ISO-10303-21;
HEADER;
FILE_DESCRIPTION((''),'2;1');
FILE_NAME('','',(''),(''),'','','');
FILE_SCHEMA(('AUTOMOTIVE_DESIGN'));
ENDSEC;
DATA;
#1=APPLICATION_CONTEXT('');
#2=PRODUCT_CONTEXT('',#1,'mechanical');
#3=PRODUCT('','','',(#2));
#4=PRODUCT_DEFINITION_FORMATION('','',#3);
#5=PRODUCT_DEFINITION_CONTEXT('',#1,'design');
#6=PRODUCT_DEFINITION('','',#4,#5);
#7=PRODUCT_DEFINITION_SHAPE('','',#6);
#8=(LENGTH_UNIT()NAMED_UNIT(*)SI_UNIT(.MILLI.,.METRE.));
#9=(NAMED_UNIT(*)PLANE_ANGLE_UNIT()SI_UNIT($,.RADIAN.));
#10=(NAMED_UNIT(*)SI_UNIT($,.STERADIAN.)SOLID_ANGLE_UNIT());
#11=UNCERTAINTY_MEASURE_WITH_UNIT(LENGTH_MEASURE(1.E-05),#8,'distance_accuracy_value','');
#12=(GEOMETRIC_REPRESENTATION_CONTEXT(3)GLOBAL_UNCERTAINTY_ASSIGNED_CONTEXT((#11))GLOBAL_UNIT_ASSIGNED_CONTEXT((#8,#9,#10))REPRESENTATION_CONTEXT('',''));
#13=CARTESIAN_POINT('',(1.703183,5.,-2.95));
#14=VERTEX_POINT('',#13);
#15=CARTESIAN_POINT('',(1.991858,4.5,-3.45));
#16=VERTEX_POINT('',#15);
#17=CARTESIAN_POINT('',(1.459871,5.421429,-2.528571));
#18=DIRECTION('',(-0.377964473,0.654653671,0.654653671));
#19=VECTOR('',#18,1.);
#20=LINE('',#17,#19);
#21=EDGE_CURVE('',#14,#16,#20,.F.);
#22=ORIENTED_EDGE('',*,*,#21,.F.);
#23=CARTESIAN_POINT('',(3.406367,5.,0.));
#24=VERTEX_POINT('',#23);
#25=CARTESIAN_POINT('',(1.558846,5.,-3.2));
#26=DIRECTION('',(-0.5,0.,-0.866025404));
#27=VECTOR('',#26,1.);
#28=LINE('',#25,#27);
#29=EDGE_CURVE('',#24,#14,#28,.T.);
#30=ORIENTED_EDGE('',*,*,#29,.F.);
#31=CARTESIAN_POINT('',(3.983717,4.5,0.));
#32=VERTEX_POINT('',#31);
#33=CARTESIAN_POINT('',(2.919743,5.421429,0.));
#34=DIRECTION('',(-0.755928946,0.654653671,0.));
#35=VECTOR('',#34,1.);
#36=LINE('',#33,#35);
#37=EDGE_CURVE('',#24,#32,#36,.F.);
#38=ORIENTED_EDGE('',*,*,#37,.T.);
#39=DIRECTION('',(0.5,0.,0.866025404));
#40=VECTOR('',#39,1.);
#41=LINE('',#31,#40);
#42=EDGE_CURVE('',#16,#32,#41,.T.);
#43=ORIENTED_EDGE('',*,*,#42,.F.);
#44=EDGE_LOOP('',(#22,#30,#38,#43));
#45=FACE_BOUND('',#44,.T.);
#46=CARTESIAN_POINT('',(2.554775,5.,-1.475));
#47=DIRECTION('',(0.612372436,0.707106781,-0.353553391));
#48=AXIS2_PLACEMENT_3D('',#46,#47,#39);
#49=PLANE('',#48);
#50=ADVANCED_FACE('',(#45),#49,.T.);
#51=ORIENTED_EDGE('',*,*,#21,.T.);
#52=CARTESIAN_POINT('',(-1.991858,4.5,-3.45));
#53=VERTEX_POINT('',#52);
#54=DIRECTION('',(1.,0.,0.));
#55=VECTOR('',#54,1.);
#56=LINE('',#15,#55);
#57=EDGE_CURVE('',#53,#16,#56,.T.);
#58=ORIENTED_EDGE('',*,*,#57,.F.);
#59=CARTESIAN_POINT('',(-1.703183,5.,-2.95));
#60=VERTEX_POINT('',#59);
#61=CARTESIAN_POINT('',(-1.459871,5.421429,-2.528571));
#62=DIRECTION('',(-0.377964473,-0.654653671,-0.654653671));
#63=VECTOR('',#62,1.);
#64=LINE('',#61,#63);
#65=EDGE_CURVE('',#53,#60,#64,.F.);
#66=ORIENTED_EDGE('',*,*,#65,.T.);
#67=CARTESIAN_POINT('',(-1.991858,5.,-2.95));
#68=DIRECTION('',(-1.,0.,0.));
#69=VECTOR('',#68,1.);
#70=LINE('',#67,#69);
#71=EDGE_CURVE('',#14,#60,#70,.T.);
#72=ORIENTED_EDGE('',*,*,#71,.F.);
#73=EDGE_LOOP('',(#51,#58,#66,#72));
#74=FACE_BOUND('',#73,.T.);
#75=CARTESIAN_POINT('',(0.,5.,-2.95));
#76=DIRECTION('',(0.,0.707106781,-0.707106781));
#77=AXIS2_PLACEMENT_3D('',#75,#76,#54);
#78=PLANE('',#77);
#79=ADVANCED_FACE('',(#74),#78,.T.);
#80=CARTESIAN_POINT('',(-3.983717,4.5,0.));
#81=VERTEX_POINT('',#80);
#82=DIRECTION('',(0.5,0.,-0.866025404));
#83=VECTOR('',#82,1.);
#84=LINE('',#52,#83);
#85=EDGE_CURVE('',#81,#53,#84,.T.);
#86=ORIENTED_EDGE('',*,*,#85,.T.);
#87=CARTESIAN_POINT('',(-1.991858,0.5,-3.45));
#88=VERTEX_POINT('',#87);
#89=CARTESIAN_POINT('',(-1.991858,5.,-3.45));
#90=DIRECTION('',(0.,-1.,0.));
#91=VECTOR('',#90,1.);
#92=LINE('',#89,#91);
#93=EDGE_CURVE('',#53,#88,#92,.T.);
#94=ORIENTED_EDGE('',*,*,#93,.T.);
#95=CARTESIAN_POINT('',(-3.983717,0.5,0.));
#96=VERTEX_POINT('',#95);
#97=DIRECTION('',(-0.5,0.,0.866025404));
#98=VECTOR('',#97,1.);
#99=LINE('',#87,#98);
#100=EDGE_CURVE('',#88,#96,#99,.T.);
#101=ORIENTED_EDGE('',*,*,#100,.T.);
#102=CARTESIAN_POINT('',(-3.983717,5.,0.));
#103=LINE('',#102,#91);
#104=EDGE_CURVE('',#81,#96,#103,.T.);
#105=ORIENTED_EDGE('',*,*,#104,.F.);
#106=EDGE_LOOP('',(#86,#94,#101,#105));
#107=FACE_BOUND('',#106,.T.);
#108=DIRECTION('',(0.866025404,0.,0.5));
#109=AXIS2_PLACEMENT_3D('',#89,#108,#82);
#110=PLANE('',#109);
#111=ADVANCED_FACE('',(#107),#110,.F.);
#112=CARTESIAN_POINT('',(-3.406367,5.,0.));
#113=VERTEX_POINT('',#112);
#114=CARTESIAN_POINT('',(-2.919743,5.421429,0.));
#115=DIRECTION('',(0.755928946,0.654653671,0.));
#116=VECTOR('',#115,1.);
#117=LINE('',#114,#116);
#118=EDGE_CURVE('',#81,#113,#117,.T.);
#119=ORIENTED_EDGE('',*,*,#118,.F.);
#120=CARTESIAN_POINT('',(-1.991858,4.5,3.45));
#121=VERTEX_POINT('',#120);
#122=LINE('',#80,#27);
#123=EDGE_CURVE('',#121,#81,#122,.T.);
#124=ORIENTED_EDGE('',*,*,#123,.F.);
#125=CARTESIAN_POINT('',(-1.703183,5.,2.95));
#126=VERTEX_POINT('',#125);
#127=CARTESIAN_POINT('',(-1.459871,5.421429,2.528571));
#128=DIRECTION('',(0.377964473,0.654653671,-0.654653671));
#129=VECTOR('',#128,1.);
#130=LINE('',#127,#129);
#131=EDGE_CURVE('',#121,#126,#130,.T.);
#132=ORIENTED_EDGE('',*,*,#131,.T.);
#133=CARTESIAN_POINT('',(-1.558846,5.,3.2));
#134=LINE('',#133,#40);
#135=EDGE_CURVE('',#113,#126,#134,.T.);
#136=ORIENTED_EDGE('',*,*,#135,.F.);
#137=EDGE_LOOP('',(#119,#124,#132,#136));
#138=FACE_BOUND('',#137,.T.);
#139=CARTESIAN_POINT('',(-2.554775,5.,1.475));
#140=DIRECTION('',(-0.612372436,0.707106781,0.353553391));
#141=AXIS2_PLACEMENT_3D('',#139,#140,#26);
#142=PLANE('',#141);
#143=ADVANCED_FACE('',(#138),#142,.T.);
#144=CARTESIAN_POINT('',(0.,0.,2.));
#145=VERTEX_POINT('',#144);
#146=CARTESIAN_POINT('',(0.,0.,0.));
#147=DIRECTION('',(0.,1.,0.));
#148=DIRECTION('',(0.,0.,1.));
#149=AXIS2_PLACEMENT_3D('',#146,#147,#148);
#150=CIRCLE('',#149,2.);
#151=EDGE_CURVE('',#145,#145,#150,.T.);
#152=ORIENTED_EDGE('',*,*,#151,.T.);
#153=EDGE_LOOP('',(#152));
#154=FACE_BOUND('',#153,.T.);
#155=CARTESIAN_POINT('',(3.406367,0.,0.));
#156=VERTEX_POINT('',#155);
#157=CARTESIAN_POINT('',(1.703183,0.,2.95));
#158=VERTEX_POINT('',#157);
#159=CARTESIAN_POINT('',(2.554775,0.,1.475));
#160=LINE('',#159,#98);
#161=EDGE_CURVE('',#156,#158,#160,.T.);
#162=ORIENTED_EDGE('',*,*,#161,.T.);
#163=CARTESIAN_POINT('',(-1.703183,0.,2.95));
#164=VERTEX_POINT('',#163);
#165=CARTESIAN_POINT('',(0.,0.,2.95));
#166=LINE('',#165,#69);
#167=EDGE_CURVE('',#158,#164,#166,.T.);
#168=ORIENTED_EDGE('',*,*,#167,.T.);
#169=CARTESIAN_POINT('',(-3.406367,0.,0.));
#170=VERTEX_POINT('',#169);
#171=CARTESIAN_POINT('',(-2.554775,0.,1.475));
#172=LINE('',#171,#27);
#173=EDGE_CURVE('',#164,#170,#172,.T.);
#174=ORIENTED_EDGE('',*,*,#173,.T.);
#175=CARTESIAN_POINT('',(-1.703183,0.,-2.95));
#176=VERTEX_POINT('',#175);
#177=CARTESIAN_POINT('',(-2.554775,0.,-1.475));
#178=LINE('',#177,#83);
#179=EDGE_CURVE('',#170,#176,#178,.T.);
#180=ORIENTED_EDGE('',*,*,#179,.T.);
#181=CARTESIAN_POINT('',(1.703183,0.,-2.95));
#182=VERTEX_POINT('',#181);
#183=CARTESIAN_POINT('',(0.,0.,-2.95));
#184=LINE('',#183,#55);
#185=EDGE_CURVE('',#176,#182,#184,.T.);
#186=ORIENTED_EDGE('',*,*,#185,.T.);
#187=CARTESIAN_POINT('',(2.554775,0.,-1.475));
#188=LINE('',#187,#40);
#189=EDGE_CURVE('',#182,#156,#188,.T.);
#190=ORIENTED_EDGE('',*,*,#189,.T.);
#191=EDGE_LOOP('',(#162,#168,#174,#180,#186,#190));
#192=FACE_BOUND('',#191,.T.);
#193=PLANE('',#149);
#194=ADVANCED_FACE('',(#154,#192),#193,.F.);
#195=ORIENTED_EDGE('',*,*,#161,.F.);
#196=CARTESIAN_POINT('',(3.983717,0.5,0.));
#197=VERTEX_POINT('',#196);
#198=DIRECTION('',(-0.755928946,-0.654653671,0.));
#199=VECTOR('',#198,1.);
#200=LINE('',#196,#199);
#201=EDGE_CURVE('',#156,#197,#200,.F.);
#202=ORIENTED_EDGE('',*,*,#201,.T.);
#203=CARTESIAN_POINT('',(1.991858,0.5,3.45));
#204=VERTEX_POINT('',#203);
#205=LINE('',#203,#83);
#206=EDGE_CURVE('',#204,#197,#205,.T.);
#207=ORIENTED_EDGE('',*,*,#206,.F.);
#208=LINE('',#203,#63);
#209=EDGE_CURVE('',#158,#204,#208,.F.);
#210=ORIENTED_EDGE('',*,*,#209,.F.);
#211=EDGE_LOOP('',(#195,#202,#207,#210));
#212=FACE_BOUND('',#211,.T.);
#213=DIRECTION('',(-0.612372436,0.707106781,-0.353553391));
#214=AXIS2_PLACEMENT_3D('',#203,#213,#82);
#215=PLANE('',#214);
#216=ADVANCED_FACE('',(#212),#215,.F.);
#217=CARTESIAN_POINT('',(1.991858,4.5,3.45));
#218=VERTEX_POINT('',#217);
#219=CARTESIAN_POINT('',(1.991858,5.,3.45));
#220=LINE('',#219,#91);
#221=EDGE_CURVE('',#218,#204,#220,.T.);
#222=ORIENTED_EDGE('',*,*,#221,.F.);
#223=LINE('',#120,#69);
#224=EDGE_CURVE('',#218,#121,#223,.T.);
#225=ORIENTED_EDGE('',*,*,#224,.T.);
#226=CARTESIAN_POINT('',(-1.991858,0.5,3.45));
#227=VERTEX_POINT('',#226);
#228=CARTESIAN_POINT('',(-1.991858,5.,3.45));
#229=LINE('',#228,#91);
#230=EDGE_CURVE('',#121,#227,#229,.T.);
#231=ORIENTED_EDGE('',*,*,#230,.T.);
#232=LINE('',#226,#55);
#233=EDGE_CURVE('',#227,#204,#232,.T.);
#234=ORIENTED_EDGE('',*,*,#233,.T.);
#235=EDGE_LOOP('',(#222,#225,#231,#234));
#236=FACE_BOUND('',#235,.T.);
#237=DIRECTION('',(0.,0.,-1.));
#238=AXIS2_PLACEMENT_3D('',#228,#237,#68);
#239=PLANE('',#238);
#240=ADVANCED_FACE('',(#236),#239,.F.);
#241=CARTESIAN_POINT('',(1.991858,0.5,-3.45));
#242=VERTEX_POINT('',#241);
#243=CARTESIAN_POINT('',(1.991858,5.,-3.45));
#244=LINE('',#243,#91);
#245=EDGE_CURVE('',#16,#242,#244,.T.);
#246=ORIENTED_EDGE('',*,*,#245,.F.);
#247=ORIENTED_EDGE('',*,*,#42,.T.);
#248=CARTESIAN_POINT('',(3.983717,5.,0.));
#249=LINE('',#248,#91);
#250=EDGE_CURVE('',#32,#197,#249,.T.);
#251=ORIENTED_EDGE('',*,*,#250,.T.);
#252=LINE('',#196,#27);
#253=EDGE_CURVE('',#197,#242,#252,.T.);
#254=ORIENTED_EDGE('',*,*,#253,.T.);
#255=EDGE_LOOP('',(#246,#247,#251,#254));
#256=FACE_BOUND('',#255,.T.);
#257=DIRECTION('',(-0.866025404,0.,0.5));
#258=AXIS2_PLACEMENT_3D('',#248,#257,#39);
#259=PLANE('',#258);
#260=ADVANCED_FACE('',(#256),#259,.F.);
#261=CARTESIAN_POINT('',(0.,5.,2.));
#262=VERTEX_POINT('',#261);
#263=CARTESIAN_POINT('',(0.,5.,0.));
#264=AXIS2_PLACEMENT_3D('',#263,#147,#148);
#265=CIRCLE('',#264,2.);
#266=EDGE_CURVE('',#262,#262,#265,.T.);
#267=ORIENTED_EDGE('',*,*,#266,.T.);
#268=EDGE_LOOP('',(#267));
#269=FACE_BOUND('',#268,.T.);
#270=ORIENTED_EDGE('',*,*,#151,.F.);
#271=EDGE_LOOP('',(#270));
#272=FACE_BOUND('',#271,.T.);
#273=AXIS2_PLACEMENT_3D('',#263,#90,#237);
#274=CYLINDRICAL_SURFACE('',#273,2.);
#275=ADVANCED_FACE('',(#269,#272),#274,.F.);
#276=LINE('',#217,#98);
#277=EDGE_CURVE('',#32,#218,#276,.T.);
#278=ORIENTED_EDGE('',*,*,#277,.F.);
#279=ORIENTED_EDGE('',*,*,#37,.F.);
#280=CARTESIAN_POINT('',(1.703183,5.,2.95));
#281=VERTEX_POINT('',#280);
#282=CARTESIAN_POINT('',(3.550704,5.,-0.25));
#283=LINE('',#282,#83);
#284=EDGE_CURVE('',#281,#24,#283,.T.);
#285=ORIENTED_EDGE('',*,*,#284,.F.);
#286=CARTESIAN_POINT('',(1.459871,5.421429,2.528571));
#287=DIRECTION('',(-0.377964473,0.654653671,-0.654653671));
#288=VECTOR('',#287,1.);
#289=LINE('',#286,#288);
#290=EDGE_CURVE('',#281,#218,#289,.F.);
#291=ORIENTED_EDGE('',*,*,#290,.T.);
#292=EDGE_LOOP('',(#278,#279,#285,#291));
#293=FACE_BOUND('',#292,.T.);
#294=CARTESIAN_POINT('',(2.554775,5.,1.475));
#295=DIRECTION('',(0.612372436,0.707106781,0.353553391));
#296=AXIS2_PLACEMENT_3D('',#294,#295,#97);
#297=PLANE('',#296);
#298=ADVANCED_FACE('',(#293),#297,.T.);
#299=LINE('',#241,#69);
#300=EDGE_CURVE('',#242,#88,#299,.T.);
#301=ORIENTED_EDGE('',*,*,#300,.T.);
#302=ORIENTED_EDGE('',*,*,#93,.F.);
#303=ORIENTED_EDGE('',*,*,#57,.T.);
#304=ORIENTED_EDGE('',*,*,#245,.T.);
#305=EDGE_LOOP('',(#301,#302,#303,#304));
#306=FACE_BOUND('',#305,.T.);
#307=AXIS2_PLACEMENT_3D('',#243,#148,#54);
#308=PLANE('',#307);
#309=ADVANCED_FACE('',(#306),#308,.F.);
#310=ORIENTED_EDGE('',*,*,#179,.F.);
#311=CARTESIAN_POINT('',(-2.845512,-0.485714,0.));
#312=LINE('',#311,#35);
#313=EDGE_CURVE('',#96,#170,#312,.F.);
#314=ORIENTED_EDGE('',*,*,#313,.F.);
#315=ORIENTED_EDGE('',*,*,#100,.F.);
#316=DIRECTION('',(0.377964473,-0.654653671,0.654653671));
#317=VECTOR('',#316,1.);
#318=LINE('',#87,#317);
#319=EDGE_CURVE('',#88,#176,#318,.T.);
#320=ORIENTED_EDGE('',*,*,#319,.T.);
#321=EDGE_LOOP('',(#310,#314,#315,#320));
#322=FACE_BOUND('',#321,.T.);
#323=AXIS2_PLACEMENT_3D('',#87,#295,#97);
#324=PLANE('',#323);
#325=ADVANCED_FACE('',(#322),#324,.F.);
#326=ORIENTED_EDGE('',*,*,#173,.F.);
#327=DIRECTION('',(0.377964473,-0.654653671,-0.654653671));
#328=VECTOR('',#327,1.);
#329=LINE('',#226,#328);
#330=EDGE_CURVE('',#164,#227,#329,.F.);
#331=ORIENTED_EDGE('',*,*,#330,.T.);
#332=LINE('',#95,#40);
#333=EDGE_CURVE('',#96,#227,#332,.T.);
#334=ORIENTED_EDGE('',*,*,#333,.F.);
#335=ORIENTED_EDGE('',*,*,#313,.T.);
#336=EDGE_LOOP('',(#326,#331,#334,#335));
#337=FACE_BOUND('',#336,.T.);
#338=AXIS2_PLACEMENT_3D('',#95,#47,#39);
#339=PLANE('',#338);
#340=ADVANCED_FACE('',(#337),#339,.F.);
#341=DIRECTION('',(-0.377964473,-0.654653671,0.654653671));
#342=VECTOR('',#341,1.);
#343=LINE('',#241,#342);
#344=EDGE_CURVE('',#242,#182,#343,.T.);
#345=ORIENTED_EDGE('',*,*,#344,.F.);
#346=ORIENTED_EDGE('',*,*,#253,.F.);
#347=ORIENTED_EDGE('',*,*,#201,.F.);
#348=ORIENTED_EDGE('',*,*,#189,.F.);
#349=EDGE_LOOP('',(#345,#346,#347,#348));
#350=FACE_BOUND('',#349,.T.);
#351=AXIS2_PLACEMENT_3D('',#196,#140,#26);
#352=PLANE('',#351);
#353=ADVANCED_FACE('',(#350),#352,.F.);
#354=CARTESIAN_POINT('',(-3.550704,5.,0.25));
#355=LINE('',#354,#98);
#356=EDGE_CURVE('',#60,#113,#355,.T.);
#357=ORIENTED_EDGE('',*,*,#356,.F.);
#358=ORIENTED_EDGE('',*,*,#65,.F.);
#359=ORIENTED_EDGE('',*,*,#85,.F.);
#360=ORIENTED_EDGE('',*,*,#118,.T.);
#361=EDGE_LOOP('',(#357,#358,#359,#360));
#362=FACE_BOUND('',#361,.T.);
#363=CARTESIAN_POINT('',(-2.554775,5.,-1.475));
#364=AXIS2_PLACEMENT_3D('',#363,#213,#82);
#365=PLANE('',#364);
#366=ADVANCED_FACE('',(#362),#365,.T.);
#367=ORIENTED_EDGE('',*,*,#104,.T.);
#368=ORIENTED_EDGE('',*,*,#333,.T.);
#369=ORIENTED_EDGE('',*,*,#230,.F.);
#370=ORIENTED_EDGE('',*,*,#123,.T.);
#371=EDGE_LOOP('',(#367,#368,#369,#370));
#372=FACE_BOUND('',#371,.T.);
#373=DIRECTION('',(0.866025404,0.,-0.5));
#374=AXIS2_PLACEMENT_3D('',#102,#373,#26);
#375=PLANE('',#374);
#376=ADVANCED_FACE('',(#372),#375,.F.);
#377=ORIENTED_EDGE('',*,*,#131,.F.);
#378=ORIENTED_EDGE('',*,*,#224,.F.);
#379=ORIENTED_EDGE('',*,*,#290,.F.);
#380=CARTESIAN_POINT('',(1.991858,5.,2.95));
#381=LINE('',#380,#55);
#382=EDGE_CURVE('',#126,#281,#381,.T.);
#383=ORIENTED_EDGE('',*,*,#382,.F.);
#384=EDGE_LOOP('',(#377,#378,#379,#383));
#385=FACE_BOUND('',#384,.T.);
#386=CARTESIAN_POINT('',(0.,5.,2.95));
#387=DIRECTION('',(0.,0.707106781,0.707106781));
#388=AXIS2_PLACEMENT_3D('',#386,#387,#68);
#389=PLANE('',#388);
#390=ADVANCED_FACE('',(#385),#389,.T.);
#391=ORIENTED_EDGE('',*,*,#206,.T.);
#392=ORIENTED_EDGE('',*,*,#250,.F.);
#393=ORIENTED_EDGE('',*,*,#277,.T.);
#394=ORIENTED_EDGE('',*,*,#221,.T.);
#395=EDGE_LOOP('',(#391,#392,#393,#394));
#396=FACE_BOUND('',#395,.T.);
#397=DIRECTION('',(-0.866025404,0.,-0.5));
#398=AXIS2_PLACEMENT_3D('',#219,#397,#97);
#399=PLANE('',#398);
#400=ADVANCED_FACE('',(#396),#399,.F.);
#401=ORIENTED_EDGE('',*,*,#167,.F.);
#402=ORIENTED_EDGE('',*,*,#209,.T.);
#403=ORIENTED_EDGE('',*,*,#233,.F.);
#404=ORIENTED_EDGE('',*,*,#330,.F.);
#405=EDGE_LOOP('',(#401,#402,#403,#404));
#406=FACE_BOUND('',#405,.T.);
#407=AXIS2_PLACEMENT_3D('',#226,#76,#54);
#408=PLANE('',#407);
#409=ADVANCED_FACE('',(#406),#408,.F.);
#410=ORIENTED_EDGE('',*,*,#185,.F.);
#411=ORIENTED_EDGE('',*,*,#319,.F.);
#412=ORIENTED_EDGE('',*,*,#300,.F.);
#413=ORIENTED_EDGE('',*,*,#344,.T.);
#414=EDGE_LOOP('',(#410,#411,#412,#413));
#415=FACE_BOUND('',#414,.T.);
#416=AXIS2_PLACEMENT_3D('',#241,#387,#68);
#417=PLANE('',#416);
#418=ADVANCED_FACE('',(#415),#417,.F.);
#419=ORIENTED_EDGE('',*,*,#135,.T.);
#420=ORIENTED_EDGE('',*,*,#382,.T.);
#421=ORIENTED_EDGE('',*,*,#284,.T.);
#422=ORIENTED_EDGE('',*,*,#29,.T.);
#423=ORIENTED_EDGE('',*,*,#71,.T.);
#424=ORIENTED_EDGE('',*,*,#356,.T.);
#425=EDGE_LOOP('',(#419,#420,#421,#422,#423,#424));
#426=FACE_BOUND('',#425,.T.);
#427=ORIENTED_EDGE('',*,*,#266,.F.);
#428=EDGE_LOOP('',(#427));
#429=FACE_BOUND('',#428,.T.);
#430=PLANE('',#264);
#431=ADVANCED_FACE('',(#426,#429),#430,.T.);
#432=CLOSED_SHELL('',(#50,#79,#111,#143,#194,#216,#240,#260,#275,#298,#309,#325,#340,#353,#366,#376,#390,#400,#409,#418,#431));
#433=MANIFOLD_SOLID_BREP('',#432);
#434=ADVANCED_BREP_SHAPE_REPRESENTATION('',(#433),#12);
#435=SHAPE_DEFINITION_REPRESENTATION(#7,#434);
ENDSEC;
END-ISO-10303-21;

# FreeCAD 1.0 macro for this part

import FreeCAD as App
import Part
import Sketcher
from FreeCAD import Vector
Q = App.Units.Quantity


def edges_at(feature, points):
    """Names of the edges that pass closest to the given points."""
    edges = feature.Shape.Edges
    near = lambda p: min(range(len(edges)), key=lambda i: edges[i].distToShape(Part.Vertex(*p))[0])
    return sorted({f"Edge{near(p) + 1}" for p in points})

doc = App.newDocument("Part")
body = doc.addObject("PartDesign::Body", "Body")

# Sketch on XZ plane
sketch1 = body.newObject("Sketcher::SketchObject", "Sketch")
sketch1.AttachmentSupport = (doc.getObject("XZ_Plane"), [""])
sketch1.MapMode = "FlatFace"
sketch1.addGeometry(Part.LineSegment(Vector(-3.983717, 0, 0), Vector(-1.991858, 3.45, 0)), False)
sketch1.addGeometry(Part.LineSegment(Vector(-1.991858, 3.45, 0), Vector(1.991858, 3.45, 0)), False)
sketch1.addGeometry(Part.LineSegment(Vector(1.991858, 3.45, 0), Vector(3.983717, 0, 0)), False)
sketch1.addGeometry(Part.LineSegment(Vector(3.983717, 0, 0), Vector(1.991858, -3.45, 0)), False)
sketch1.addGeometry(Part.LineSegment(Vector(1.991858, -3.45, 0), Vector(-1.991858, -3.45, 0)), False)
sketch1.addGeometry(Part.LineSegment(Vector(-1.991858, -3.45, 0), Vector(-3.983717, 0, 0)), False)
sketch1.addGeometry(Part.Circle(Vector(0, 0, 0), Vector(0, 0, 1), 2), False)
sketch1.addConstraint(Sketcher.Constraint("Coincident", 0, 2, 1, 1))
sketch1.addConstraint(Sketcher.Constraint("Coincident", 1, 2, 2, 1))
sketch1.addConstraint(Sketcher.Constraint("Coincident", 2, 2, 3, 1))
sketch1.addConstraint(Sketcher.Constraint("Coincident", 3, 2, 4, 1))
sketch1.addConstraint(Sketcher.Constraint("Coincident", 4, 2, 5, 1))
sketch1.addConstraint(Sketcher.Constraint("Coincident", 5, 2, 0, 1))
sketch1.addConstraint(Sketcher.Constraint("Horizontal", 1))
sketch1.addConstraint(Sketcher.Constraint("Horizontal", 4))
sketch1.addConstraint(Sketcher.Constraint("Coincident", 6, 3, -1, 1))
sketch1.addConstraint(Sketcher.Constraint("Symmetric", 0, 2, 3, 2, -1, 1))
sketch1.addConstraint(Sketcher.Constraint("Symmetric", 2, 2, 5, 2, -1, 1))
sketch1.addConstraint(Sketcher.Constraint("PointOnObject", 2, 2, -1))
sketch1.addConstraint(Sketcher.Constraint("Parallel", 2, 5))
sketch1.addConstraint(Sketcher.Constraint("Vertical", 1, 2, 3, 2))
sketch1.addConstraint(Sketcher.Constraint("Diameter", 6, Q("4 mm")))
sketch1.addConstraint(Sketcher.Constraint("Angle", 0, Q("60 deg")))
sketch1.addConstraint(Sketcher.Constraint("DistanceY", 3, 2, 1, 2, Q("6.9 mm")))
sketch1.addConstraint(Sketcher.Constraint("DistanceX", 1, 1, 1, 2, Q("3.983717 mm")))
pad1 = body.newObject("PartDesign::Pad", "Pad")
pad1.Profile = sketch1
pad1.Length = 5
pad1.Reversed = True
doc.recompute()

chamfer = body.newObject("PartDesign::Chamfer", "Chamfer")
chamfer.Base = (pad1, edges_at(pad1, [
    (0, 5, 3.45),
    (2.988, 5, 1.725),
    (2.988, 5, -1.725),
    (0, 5, -3.45),
    (-2.988, 5, -1.725),
    (0, 0, -3.45),
    (2.988, 0, -1.725),
    (2.988, 0, 1.725),
    (0, 0, 3.45),
    (-2.988, 0, 1.725),
    (-2.988, 0, -1.725),
    (-2.988, 5, 1.725),
]))
chamfer.Size = 0.5

doc.recompute()
